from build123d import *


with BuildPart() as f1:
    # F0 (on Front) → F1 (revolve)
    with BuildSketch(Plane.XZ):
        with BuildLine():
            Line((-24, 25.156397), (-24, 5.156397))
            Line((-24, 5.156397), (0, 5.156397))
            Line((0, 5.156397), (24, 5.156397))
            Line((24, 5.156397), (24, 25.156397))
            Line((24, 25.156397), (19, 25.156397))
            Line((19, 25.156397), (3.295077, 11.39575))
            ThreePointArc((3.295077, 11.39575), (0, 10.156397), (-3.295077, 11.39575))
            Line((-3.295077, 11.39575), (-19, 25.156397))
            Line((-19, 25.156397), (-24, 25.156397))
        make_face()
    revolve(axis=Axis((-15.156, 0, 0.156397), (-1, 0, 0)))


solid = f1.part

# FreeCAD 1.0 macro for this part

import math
import FreeCAD as App
import Part
import Sketcher

V = App.Vector
Q = App.Units.Quantity

doc = App.newDocument("Part")
body = doc.addObject("PartDesign::Body", "Body")

sketch1 = doc.addObject("Sketcher::SketchObject", "Sketch")
body.addObject(sketch1)
sketch1.AttachmentSupport = (doc.XZ_Plane, [""])
sketch1.MapMode = "FlatFace"
sketch1.addGeometry([
    Part.LineSegment(V(-24, 25.156397, 0), V(-24, 5.156397, 0)),
    Part.LineSegment(V(-24, 5.156397, 0), V(24, 5.156397, 0)),
    Part.LineSegment(V(24, 5.156397, 0), V(24, 25.156397, 0)),
    Part.LineSegment(V(24, 25.156397, 0), V(19, 25.156397, 0)),
    Part.LineSegment(V(19, 25.156397, 0), V(3.295077, 11.39575, 0)),
    Part.ArcOfCircle(Part.Circle(V(0, 15.156396, 0), V(0, 0, 1), 4.999999), math.radians(-131.224832), math.radians(-48.775168)),
    Part.LineSegment(V(-3.295077, 11.39575, 0), V(-19, 25.156397, 0)),
    Part.LineSegment(V(-19, 25.156397, 0), V(-24, 25.156397, 0)),
], False)
sketch1.addGeometry(Part.LineSegment(V(24, 0.156397, 0), V(-24, 0.156397, 0)), True)
sketch1.addConstraint([
    Sketcher.Constraint("Coincident", 0, 2, 1, 1),
    Sketcher.Constraint("Coincident", 1, 2, 2, 1),
    Sketcher.Constraint("Coincident", 2, 2, 3, 1),
    Sketcher.Constraint("Coincident", 3, 2, 4, 1),
    Sketcher.Constraint("Tangent", 4, 2, 5, 2),
    Sketcher.Constraint("Tangent", 5, 1, 6, 1),
    Sketcher.Constraint("Coincident", 6, 2, 7, 1),
    Sketcher.Constraint("Coincident", 7, 2, 0, 1),
    Sketcher.Constraint("Vertical", 0),
    Sketcher.Constraint("Horizontal", 1),
    Sketcher.Constraint("Vertical", 2),
    Sketcher.Constraint("Horizontal", 3),
    Sketcher.Constraint("Horizontal", 7),
    Sketcher.Constraint("Horizontal", 8),
    Sketcher.Constraint("Symmetric", 4, 2, 5, 1, -2),
    Sketcher.Constraint("Symmetric", 2, 2, 7, 2, -2),
    Sketcher.Constraint("Vertical", 2, 2, 8, 1),
    Sketcher.Constraint("Vertical", 7, 2, 8, 2),
    Sketcher.Constraint("Radius", 5, Q("4.999999 mm")),
    Sketcher.Constraint("DistanceX", 1, 1, 1, 2, Q("48 mm")),
    Sketcher.Constraint("DistanceX", 3, 2, 3, 1, Q("5 mm")),
    Sketcher.Constraint("DistanceY", 0, 2, 0, 1, Q("20 mm")),
    Sketcher.Constraint("DistanceY", 0, 2, 5, 3, Q("9.999999 mm")),
    Sketcher.Constraint("DistanceY", 8, 1, 1, 2, Q("5 mm")),
    Sketcher.Constraint("DistanceY", -1, 1, 4, 2, Q("11.39575 mm")),
])
revolution = doc.addObject("PartDesign::Revolution", "Revolution")
body.addObject(revolution)
revolution.Profile = sketch1
revolution.ReferenceAxis = (sketch1, ["Axis0"])
revolution.Angle = 360

doc.recompute()
